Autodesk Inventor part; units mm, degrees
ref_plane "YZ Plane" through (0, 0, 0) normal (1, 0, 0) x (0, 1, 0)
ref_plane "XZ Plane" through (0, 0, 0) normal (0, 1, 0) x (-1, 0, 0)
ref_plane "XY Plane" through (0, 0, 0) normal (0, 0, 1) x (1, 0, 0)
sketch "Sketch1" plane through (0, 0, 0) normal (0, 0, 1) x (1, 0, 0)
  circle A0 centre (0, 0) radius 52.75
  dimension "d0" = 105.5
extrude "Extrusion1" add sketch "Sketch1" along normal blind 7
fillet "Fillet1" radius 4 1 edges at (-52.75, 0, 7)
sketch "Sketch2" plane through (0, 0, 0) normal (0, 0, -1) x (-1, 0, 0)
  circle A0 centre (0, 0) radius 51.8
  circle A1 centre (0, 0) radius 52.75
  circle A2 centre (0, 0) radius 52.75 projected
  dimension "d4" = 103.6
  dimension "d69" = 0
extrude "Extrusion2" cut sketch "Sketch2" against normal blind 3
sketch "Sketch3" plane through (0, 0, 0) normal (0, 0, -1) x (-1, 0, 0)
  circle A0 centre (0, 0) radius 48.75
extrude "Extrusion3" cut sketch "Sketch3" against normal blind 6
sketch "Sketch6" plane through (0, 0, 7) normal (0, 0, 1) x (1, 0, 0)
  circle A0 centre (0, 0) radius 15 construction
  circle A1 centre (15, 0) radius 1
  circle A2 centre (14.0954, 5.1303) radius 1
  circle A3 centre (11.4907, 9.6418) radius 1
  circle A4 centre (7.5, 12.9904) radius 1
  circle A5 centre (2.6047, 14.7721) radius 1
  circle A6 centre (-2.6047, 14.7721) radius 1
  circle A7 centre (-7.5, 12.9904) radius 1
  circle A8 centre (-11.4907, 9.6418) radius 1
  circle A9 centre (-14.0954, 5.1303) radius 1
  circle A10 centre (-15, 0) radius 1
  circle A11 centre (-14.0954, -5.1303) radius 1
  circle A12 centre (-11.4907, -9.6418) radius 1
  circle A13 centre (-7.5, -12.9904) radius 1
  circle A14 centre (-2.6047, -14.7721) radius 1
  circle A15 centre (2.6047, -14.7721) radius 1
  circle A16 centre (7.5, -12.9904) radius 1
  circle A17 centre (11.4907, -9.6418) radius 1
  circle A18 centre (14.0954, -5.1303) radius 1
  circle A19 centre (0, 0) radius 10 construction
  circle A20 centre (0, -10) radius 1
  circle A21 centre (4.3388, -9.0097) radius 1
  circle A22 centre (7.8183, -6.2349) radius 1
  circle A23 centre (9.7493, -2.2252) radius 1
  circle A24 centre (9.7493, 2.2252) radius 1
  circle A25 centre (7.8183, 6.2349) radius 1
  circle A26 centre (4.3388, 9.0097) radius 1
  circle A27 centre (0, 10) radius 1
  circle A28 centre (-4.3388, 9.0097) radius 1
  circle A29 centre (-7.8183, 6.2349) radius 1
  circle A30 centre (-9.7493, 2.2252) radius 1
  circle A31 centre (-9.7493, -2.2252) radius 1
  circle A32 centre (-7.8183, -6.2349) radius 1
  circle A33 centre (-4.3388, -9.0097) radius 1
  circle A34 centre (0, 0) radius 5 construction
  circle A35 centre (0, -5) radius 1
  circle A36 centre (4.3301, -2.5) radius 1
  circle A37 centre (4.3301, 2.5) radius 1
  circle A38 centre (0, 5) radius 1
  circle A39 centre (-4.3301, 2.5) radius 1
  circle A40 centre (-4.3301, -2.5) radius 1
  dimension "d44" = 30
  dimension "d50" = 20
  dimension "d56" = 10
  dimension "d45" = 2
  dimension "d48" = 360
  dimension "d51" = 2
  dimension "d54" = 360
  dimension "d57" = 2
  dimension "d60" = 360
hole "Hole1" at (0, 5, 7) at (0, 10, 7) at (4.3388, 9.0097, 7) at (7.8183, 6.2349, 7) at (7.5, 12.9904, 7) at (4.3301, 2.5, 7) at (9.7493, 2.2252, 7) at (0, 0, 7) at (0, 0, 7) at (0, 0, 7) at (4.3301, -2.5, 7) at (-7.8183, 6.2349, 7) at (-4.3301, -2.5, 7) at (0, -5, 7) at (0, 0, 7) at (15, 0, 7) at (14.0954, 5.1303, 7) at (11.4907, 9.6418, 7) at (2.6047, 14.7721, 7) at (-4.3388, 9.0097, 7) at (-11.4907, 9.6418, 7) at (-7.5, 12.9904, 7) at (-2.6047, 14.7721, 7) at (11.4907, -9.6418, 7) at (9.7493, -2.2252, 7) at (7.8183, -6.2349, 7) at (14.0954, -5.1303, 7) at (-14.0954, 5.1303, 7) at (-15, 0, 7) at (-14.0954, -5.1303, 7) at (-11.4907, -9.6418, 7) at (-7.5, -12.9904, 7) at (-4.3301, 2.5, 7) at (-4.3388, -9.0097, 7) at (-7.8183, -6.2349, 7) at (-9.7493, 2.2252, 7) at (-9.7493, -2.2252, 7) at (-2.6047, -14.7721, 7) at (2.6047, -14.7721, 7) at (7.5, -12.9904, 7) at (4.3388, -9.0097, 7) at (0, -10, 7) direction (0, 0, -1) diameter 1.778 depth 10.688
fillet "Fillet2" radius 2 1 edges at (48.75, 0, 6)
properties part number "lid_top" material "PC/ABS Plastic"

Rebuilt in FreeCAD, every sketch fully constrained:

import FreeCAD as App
import Part
import Sketcher
from FreeCAD import Vector
Q = App.Units.Quantity


def edges_at(feature, points):
    """Names of the edges that pass closest to the given points."""
    edges = feature.Shape.Edges
    near = lambda p: min(range(len(edges)), key=lambda i: edges[i].distToShape(Part.Vertex(*p))[0])
    return sorted({f"Edge{near(p) + 1}" for p in points})

doc = App.newDocument("Part")
body = doc.addObject("PartDesign::Body", "Body")

sketch1 = body.newObject("Sketcher::SketchObject", "Sketch")
sketch1.AttachmentSupport = (doc.getObject("XY_Plane"), [""])
sketch1.MapMode = "FlatFace"
sketch1.addGeometry(Part.Circle(Vector(0, 0, 0), Vector(0, 0, 1), 53), False)
sketch1.addConstraint(Sketcher.Constraint("Coincident", 0, 3, -1, 1))
sketch1.addConstraint(Sketcher.Constraint("Diameter", 0, Q("105.5 mm")))
pad1 = body.newObject("PartDesign::Pad", "Pad")
pad1.Profile = sketch1
pad1.Length = 7
doc.recompute()

fillet = body.newObject("PartDesign::Fillet", "Fillet")
fillet.Base = (pad1, edges_at(pad1, [(-52.75, 0, 7)]))
fillet.Radius = 4

sketch2 = body.newObject("Sketcher::SketchObject", "Sketch001")
sketch2.AttachmentSupport = (doc.getObject("XY_Plane"), [""])
sketch2.MapMode = "FlatFace"
sketch2.addGeometry(Part.Circle(Vector(0, 0, 0), Vector(0, 0, 1), 53), False)
sketch2.addGeometry(Part.Circle(Vector(0, 0, 0), Vector(0, 0, 1), 52), False)
sketch2.addConstraint(Sketcher.Constraint("Coincident", 0, 3, -1, 1))
sketch2.addConstraint(Sketcher.Constraint("Coincident", 1, 3, -1, 1))
sketch2.addConstraint(Sketcher.Constraint("Diameter", 1, Q("103.6 mm")))
sketch2.addConstraint(Sketcher.Constraint("Diameter", 0, Q("105.5 mm")))
pocket1 = body.newObject("PartDesign::Pocket", "Pocket")
pocket1.Profile = sketch2
pocket1.Length = 3
pocket1.Reversed = True

sketch3 = body.newObject("Sketcher::SketchObject", "Sketch002")
sketch3.AttachmentSupport = (doc.getObject("XY_Plane"), [""])
sketch3.MapMode = "FlatFace"
sketch3.addGeometry(Part.Circle(Vector(0, 0, 0), Vector(0, 0, 1), 49), False)
sketch3.addConstraint(Sketcher.Constraint("Coincident", 0, 3, -1, 1))
sketch3.addConstraint(Sketcher.Constraint("Diameter", 0, Q("97.5 mm")))
pocket2 = body.newObject("PartDesign::Pocket", "Pocket001")
pocket2.Profile = sketch3
pocket2.Length = 6
pocket2.Reversed = True

sketch4 = body.newObject("Sketcher::SketchObject", "Sketch003")
sketch4.AttachmentSupport = (doc.getObject("XY_Plane"), [""])
sketch4.MapMode = "FlatFace"
sketch4.AttachmentOffset = App.Placement(Vector(0, 0, 7), App.Rotation())
sketch4.addGeometry(Part.Circle(Vector(0, 5, 0), Vector(0, 0, 1), 0.9), False)
sketch4.addGeometry(Part.Circle(Vector(0, 10, 0), Vector(0, 0, 1), 0.9), False)
sketch4.addGeometry(Part.Circle(Vector(4.3, 9, 0), Vector(0, 0, 1), 0.9), False)
sketch4.addGeometry(Part.Circle(Vector(7.8, 6.2, 0), Vector(0, 0, 1), 0.9), False)
sketch4.addGeometry(Part.Circle(Vector(7.5, 13, 0), Vector(0, 0, 1), 0.9), False)
sketch4.addGeometry(Part.Circle(Vector(4.3, 2.5, 0), Vector(0, 0, 1), 0.9), False)
sketch4.addGeometry(Part.Circle(Vector(9.7, 2.2, 0), Vector(0, 0, 1), 0.9), False)
sketch4.addGeometry(Part.Circle(Vector(0, 0, 0), Vector(0, 0, 1), 0.9), False)
sketch4.addGeometry(Part.Circle(Vector(0, 0, 0), Vector(0, 0, 1), 0.9), False)
sketch4.addGeometry(Part.Circle(Vector(0, 0, 0), Vector(0, 0, 1), 0.9), False)
sketch4.addGeometry(Part.Circle(Vector(4.3, -2.5, 0), Vector(0, 0, 1), 0.9), False)
sketch4.addGeometry(Part.Circle(Vector(-7.8, 6.2, 0), Vector(0, 0, 1), 0.9), False)
sketch4.addGeometry(Part.Circle(Vector(-4.3, -2.5, 0), Vector(0, 0, 1), 0.9), False)
sketch4.addGeometry(Part.Circle(Vector(0, -5, 0), Vector(0, 0, 1), 0.9), False)
sketch4.addGeometry(Part.Circle(Vector(0, 0, 0), Vector(0, 0, 1), 0.9), False)
sketch4.addGeometry(Part.Circle(Vector(15, 0, 0), Vector(0, 0, 1), 0.9), False)
sketch4.addGeometry(Part.Circle(Vector(14.1, 5.1, 0), Vector(0, 0, 1), 0.9), False)
sketch4.addGeometry(Part.Circle(Vector(11.5, 9.6, 0), Vector(0, 0, 1), 0.9), False)
sketch4.addGeometry(Part.Circle(Vector(2.6, 14.8, 0), Vector(0, 0, 1), 0.9), False)
sketch4.addGeometry(Part.Circle(Vector(-4.3, 9, 0), Vector(0, 0, 1), 0.9), False)
sketch4.addGeometry(Part.Circle(Vector(-11.5, 9.6, 0), Vector(0, 0, 1), 0.9), False)
sketch4.addGeometry(Part.Circle(Vector(-7.5, 13, 0), Vector(0, 0, 1), 0.9), False)
sketch4.addGeometry(Part.Circle(Vector(-2.6, 14.8, 0), Vector(0, 0, 1), 0.9), False)
sketch4.addGeometry(Part.Circle(Vector(11.5, -9.6, 0), Vector(0, 0, 1), 0.9), False)
sketch4.addGeometry(Part.Circle(Vector(9.7, -2.2, 0), Vector(0, 0, 1), 0.9), False)
sketch4.addGeometry(Part.Circle(Vector(7.8, -6.2, 0), Vector(0, 0, 1), 0.9), False)
sketch4.addGeometry(Part.Circle(Vector(14.1, -5.1, 0), Vector(0, 0, 1), 0.9), False)
sketch4.addGeometry(Part.Circle(Vector(-14.1, 5.1, 0), Vector(0, 0, 1), 0.9), False)
sketch4.addGeometry(Part.Circle(Vector(-15, 0, 0), Vector(0, 0, 1), 0.9), False)
sketch4.addGeometry(Part.Circle(Vector(-14.1, -5.1, 0), Vector(0, 0, 1), 0.9), False)
sketch4.addGeometry(Part.Circle(Vector(-11.5, -9.6, 0), Vector(0, 0, 1), 0.9), False)
sketch4.addGeometry(Part.Circle(Vector(-7.5, -13, 0), Vector(0, 0, 1), 0.9), False)
sketch4.addGeometry(Part.Circle(Vector(-4.3, 2.5, 0), Vector(0, 0, 1), 0.9), False)
sketch4.addGeometry(Part.Circle(Vector(-4.3, -9, 0), Vector(0, 0, 1), 0.9), False)
sketch4.addGeometry(Part.Circle(Vector(-7.8, -6.2, 0), Vector(0, 0, 1), 0.9), False)
sketch4.addGeometry(Part.Circle(Vector(-9.7, 2.2, 0), Vector(0, 0, 1), 0.9), False)
sketch4.addGeometry(Part.Circle(Vector(-9.7, -2.2, 0), Vector(0, 0, 1), 0.9), False)
sketch4.addGeometry(Part.Circle(Vector(-2.6, -14.8, 0), Vector(0, 0, 1), 0.9), False)
sketch4.addGeometry(Part.Circle(Vector(2.6, -14.8, 0), Vector(0, 0, 1), 0.9), False)
sketch4.addGeometry(Part.Circle(Vector(7.5, -13, 0), Vector(0, 0, 1), 0.9), False)
sketch4.addGeometry(Part.Circle(Vector(4.3, -9, 0), Vector(0, 0, 1), 0.9), False)
sketch4.addGeometry(Part.Circle(Vector(0, -10, 0), Vector(0, 0, 1), 0.9), False)
sketch4.addConstraint(Sketcher.Constraint("Coincident", 7, 3, -1, 1))
sketch4.addConstraint(Sketcher.Constraint("Coincident", 8, 3, -1, 1))
sketch4.addConstraint(Sketcher.Constraint("Coincident", 9, 3, -1, 1))
sketch4.addConstraint(Sketcher.Constraint("Coincident", 14, 3, -1, 1))
sketch4.addConstraint(Sketcher.Constraint("Equal", 0, 1))
sketch4.addConstraint(Sketcher.Constraint("Equal", 1, 2))
sketch4.addConstraint(Sketcher.Constraint("Equal", 2, 3))
sketch4.addConstraint(Sketcher.Constraint("Equal", 3, 4))
sketch4.addConstraint(Sketcher.Constraint("Equal", 4, 5))
sketch4.addConstraint(Sketcher.Constraint("Equal", 5, 6))
sketch4.addConstraint(Sketcher.Constraint("Equal", 6, 7))
sketch4.addConstraint(Sketcher.Constraint("Equal", 7, 8))
sketch4.addConstraint(Sketcher.Constraint("Equal", 8, 9))
sketch4.addConstraint(Sketcher.Constraint("Equal", 9, 10))
sketch4.addConstraint(Sketcher.Constraint("Equal", 10, 11))
sketch4.addConstraint(Sketcher.Constraint("Equal", 11, 12))
sketch4.addConstraint(Sketcher.Constraint("Equal", 12, 13))
sketch4.addConstraint(Sketcher.Constraint("Equal", 13, 14))
sketch4.addConstraint(Sketcher.Constraint("Equal", 14, 15))
sketch4.addConstraint(Sketcher.Constraint("Equal", 15, 16))
sketch4.addConstraint(Sketcher.Constraint("Equal", 16, 17))
sketch4.addConstraint(Sketcher.Constraint("Equal", 17, 18))
sketch4.addConstraint(Sketcher.Constraint("Equal", 18, 19))
sketch4.addConstraint(Sketcher.Constraint("Equal", 19, 20))
sketch4.addConstraint(Sketcher.Constraint("Equal", 20, 21))
sketch4.addConstraint(Sketcher.Constraint("Equal", 21, 22))
sketch4.addConstraint(Sketcher.Constraint("Equal", 22, 23))
sketch4.addConstraint(Sketcher.Constraint("Equal", 23, 24))
sketch4.addConstraint(Sketcher.Constraint("Equal", 24, 25))
sketch4.addConstraint(Sketcher.Constraint("Equal", 25, 26))
sketch4.addConstraint(Sketcher.Constraint("Equal", 26, 27))
sketch4.addConstraint(Sketcher.Constraint("Equal", 27, 28))
sketch4.addConstraint(Sketcher.Constraint("Equal", 28, 29))
sketch4.addConstraint(Sketcher.Constraint("Equal", 29, 30))
sketch4.addConstraint(Sketcher.Constraint("Equal", 30, 31))
sketch4.addConstraint(Sketcher.Constraint("Equal", 31, 32))
sketch4.addConstraint(Sketcher.Constraint("Equal", 32, 33))
sketch4.addConstraint(Sketcher.Constraint("Equal", 33, 34))
sketch4.addConstraint(Sketcher.Constraint("Equal", 34, 35))
sketch4.addConstraint(Sketcher.Constraint("Equal", 35, 36))
sketch4.addConstraint(Sketcher.Constraint("Equal", 36, 37))
sketch4.addConstraint(Sketcher.Constraint("Equal", 37, 38))
sketch4.addConstraint(Sketcher.Constraint("Equal", 38, 39))
sketch4.addConstraint(Sketcher.Constraint("Equal", 39, 40))
sketch4.addConstraint(Sketcher.Constraint("Equal", 40, 41))
sketch4.addConstraint(Sketcher.Constraint("Symmetric", 5, 3, 12, 3, -1, 1))
sketch4.addConstraint(Sketcher.Constraint("Symmetric", 0, 3, 13, 3, -1, 1))
sketch4.addConstraint(Sketcher.Constraint("Symmetric", 20, 3, 23, 3, -1, 1))
sketch4.addConstraint(Sketcher.Constraint("Symmetric", 11, 3, 25, 3, -1, 1))
sketch4.addConstraint(Sketcher.Constraint("Symmetric", 26, 3, 27, 3, -1, 1))
sketch4.addConstraint(Sketcher.Constraint("Symmetric", 15, 3, 28, 3, -1, 1))
sketch4.addConstraint(Sketcher.Constraint("Symmetric", 16, 3, 29, 3, -1, 1))
sketch4.addConstraint(Sketcher.Constraint("Symmetric", 17, 3, 30, 3, -1, 1))
sketch4.addConstraint(Sketcher.Constraint("Symmetric", 4, 3, 31, 3, -1, 1))
sketch4.addConstraint(Sketcher.Constraint("Symmetric", 10, 3, 32, 3, -1, 1))
sketch4.addConstraint(Sketcher.Constraint("Symmetric", 2, 3, 33, 3, -1, 1))
sketch4.addConstraint(Sketcher.Constraint("Symmetric", 3, 3, 34, 3, -1, 1))
sketch4.addConstraint(Sketcher.Constraint("Symmetric", 24, 3, 35, 3, -1, 1))
sketch4.addConstraint(Sketcher.Constraint("Symmetric", 6, 3, 36, 3, -1, 1))
sketch4.addConstraint(Sketcher.Constraint("Symmetric", 18, 3, 37, 3, -1, 1))
sketch4.addConstraint(Sketcher.Constraint("Symmetric", 22, 3, 38, 3, -1, 1))
sketch4.addConstraint(Sketcher.Constraint("Symmetric", 21, 3, 39, 3, -1, 1))
sketch4.addConstraint(Sketcher.Constraint("Symmetric", 19, 3, 40, 3, -1, 1))
sketch4.addConstraint(Sketcher.Constraint("Symmetric", 1, 3, 41, 3, -1, 1))
sketch4.addConstraint(Sketcher.Constraint("Symmetric", 3, 3, 11, 3, -2))
sketch4.addConstraint(Sketcher.Constraint("Symmetric", 10, 3, 12, 3, -2))
sketch4.addConstraint(Sketcher.Constraint("Symmetric", 2, 3, 19, 3, -2))
sketch4.addConstraint(Sketcher.Constraint("Symmetric", 17, 3, 20, 3, -2))
sketch4.addConstraint(Sketcher.Constraint("Symmetric", 4, 3, 21, 3, -2))
sketch4.addConstraint(Sketcher.Constraint("Symmetric", 18, 3, 22, 3, -2))
sketch4.addConstraint(Sketcher.Constraint("Symmetric", 16, 3, 27, 3, -2))
sketch4.addConstraint(Sketcher.Constraint("Symmetric", 6, 3, 35, 3, -2))
sketch4.addConstraint(Sketcher.Constraint("PointOnObject", 0, 3, -2))
sketch4.addConstraint(Sketcher.Constraint("PointOnObject", 1, 3, -2))
sketch4.addConstraint(Sketcher.Constraint("PointOnObject", 15, 3, -1))
sketch4.addConstraint(Sketcher.Constraint("Diameter", 0, Q("1.778 mm")))
sketch4.addConstraint(Sketcher.Constraint("DistanceY", -1, 1, 0, 3, Q("5 mm")))
sketch4.addConstraint(Sketcher.Constraint("DistanceY", -1, 1, 1, 3, Q("10 mm")))
sketch4.addConstraint(Sketcher.Constraint("DistanceX", -1, 1, 15, 3, Q("15 mm")))
sketch4.addConstraint(Sketcher.Constraint("DistanceY", 10, 3, 5, 3, Q("5 mm")))
sketch4.addConstraint(Sketcher.Constraint("DistanceX", -1, 1, 4, 3, Q("7.5 mm")))
sketch4.addConstraint(Sketcher.Constraint("DistanceX", -1, 1, 5, 3, Q("4.33 mm")))
sketch4.addConstraint(Sketcher.Constraint("DistanceY", 16, 3, 4, 3, Q("7.86 mm")))
sketch4.addConstraint(Sketcher.Constraint("DistanceY", 25, 3, 6, 3, Q("8.46 mm")))
sketch4.addConstraint(Sketcher.Constraint("DistanceY", -1, 1, 3, 3, Q("6.235 mm")))
sketch4.addConstraint(Sketcher.Constraint("DistanceY", -1, 1, 18, 3, Q("14.772 mm")))
sketch4.addConstraint(Sketcher.Constraint("DistanceX", 3, 3, 6, 3, Q("1.931 mm")))
sketch4.addConstraint(Sketcher.Constraint("DistanceX", 6, 3, 16, 3, Q("4.346 mm")))
sketch4.addConstraint(Sketcher.Constraint("DistanceY", 6, 3, 16, 3, Q("2.905 mm")))
sketch4.addConstraint(Sketcher.Constraint("DistanceY", 3, 3, 17, 3, Q("3.407 mm")))
sketch4.addConstraint(Sketcher.Constraint("DistanceX", 2, 3, 17, 3, Q("7.152 mm")))
sketch4.addConstraint(Sketcher.Constraint("DistanceY", 2, 3, 17, 3, Q("0.632 mm")))
sketch4.addConstraint(Sketcher.Constraint("DistanceX", 18, 3, 2, 3, Q("1.734 mm")))
sketch4.addConstraint(Sketcher.Constraint("DistanceX", -1, 1, 2, 3, Q("4.3388 mm")))
sketch4.addConstraint(Sketcher.Constraint("DistanceX", -1, 1, 3, 3, Q("7.8183 mm")))
doc.recompute()
hole = body.newObject("PartDesign::Hole", "Hole")
hole.Profile = sketch4
hole.ThreadType = "None"
hole.Diameter = 1.778
hole.DepthType = "Dimension"
hole.Depth = 10.688
hole.DrillPoint = "Flat"
doc.recompute()

fillet2 = body.newObject("PartDesign::Fillet", "Fillet001")
fillet2.Base = (hole, edges_at(hole, [(48.75, 0, 6)]))
fillet2.Radius = 2

doc.recompute()
